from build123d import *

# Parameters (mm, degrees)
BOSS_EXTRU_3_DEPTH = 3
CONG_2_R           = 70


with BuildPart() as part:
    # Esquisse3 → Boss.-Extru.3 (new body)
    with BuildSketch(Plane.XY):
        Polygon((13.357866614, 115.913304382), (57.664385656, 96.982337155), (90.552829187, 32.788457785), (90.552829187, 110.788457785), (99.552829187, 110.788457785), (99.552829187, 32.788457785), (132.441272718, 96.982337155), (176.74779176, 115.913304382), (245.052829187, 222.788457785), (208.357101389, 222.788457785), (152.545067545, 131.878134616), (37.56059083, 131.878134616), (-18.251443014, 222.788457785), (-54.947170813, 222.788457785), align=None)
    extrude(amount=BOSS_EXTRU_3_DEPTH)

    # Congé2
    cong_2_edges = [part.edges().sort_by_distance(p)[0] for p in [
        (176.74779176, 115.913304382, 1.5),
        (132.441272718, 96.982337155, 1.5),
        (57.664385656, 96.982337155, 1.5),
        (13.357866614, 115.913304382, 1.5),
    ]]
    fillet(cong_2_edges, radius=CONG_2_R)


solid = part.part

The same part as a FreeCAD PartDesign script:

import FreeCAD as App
import Part
import Sketcher

V = App.Vector
Q = App.Units.Quantity


def edges_at(feature, points):
    """Names of the edges that pass closest to the given points."""
    edges = feature.Shape.Edges
    near = lambda p: min(range(len(edges)), key=lambda i: edges[i].distToShape(Part.Vertex(*p))[0])
    return sorted({f"Edge{near(p) + 1}" for p in points})

doc = App.newDocument("Part")
body = doc.addObject("PartDesign::Body", "Body")

sketch1 = body.newObject("Sketcher::SketchObject", "Sketch")
sketch1.AttachmentSupport = (doc.getObject("XY_Plane"), [""])
sketch1.MapMode = "FlatFace"
sketch1.addGeometry([
    Part.LineSegment(V(13.357867, 115.913304, 0), V(57.664386, 96.982337, 0)),
    Part.LineSegment(V(57.664386, 96.982337, 0), V(90.552829, 32.788458, 0)),
    Part.LineSegment(V(90.552829, 32.788458, 0), V(90.552829, 110.788458, 0)),
    Part.LineSegment(V(90.552829, 110.788458, 0), V(99.552829, 110.788458, 0)),
    Part.LineSegment(V(99.552829, 110.788458, 0), V(99.552829, 32.788458, 0)),
    Part.LineSegment(V(99.552829, 32.788458, 0), V(132.441273, 96.982337, 0)),
    Part.LineSegment(V(132.441273, 96.982337, 0), V(176.747792, 115.913304, 0)),
    Part.LineSegment(V(176.747792, 115.913304, 0), V(245.052829, 222.788458, 0)),
    Part.LineSegment(V(245.052829, 222.788458, 0), V(208.357101, 222.788458, 0)),
    Part.LineSegment(V(208.357101, 222.788458, 0), V(152.545068, 131.878135, 0)),
    Part.LineSegment(V(152.545068, 131.878135, 0), V(37.560591, 131.878135, 0)),
    Part.LineSegment(V(37.560591, 131.878135, 0), V(-18.251443, 222.788458, 0)),
    Part.LineSegment(V(-18.251443, 222.788458, 0), V(-54.947171, 222.788458, 0)),
    Part.LineSegment(V(-54.947171, 222.788458, 0), V(13.357867, 115.913304, 0)),
], False)
sketch1.addConstraint([
    Sketcher.Constraint("Coincident", 0, 2, 1, 1),
    Sketcher.Constraint("Coincident", 1, 2, 2, 1),
    Sketcher.Constraint("Coincident", 2, 2, 3, 1),
    Sketcher.Constraint("Coincident", 3, 2, 4, 1),
    Sketcher.Constraint("Coincident", 4, 2, 5, 1),
    Sketcher.Constraint("Coincident", 5, 2, 6, 1),
    Sketcher.Constraint("Coincident", 6, 2, 7, 1),
    Sketcher.Constraint("Coincident", 7, 2, 8, 1),
    Sketcher.Constraint("Coincident", 8, 2, 9, 1),
    Sketcher.Constraint("Coincident", 9, 2, 10, 1),
    Sketcher.Constraint("Coincident", 10, 2, 11, 1),
    Sketcher.Constraint("Coincident", 11, 2, 12, 1),
    Sketcher.Constraint("Coincident", 12, 2, 13, 1),
    Sketcher.Constraint("Coincident", 13, 2, 0, 1),
    Sketcher.Constraint("Vertical", 2),
    Sketcher.Constraint("Horizontal", 3),
    Sketcher.Constraint("Vertical", 4),
    Sketcher.Constraint("Horizontal", 8),
    Sketcher.Constraint("Horizontal", 10),
    Sketcher.Constraint("Horizontal", 12),
    Sketcher.Constraint("Horizontal", 1, 2, 4, 2),
    Sketcher.Constraint("Horizontal", 0, 2, 5, 2),
    Sketcher.Constraint("Horizontal", 8, 2, 11, 2),
    Sketcher.Constraint("Horizontal", 6, 2, 13, 2),
    Sketcher.Constraint("Equal", 8, 12),
    Sketcher.Constraint("Equal", 1, 5),
    Sketcher.Constraint("Equal", 0, 6),
    Sketcher.Constraint("Equal", 9, 11),
    Sketcher.Constraint("Equal", 7, 13),
    Sketcher.Constraint("DistanceX", 3, 1, 3, 2, Q("9 mm")),
    Sketcher.Constraint("DistanceY", 2, 1, 2, 2, Q("78 mm")),
    Sketcher.Constraint("DistanceY", 3, 2, 7, 2, Q("112 mm")),
    Sketcher.Constraint("DistanceX", 3, 2, 7, 2, Q("145.5 mm")),
    Sketcher.Constraint("DistanceX", -1, 1, 8, 2, Q("208.357101 mm")),
    Sketcher.Constraint("Distance", 0, Q("48.181419 mm")),
    Sketcher.Constraint("DistanceX", 8, 2, 8, 1, Q("36.695728 mm")),
    Sketcher.Constraint("DistanceX", 10, 2, 10, 1, Q("114.984477 mm")),
    Sketcher.Constraint("DistanceX", -1, 1, 6, 2, Q("176.747792 mm")),
    Sketcher.Constraint("DistanceY", 1, 2, 0, 2, Q("64.193879 mm")),
    Sketcher.Constraint("DistanceX", 5, 2, 6, 2, Q("44.306519 mm")),
    Sketcher.Constraint("DistanceY", 6, 2, 9, 2, Q("15.96483 mm")),
    Sketcher.Constraint("DistanceY", -1, 1, 0, 2, Q("96.982337 mm")),
])
pad1 = body.newObject("PartDesign::Pad", "Pad")
pad1.Profile = sketch1
pad1.Length = 3
doc.recompute()

fillet = body.newObject("PartDesign::Fillet", "Fillet")
fillet.Base = (pad1, edges_at(pad1, [
    (176.748, 115.913, 1.5),
    (132.441, 96.982, 1.5),
    (57.664, 96.982, 1.5),
    (13.358, 115.913, 1.5),
]))
fillet.Radius = 70

doc.recompute()
